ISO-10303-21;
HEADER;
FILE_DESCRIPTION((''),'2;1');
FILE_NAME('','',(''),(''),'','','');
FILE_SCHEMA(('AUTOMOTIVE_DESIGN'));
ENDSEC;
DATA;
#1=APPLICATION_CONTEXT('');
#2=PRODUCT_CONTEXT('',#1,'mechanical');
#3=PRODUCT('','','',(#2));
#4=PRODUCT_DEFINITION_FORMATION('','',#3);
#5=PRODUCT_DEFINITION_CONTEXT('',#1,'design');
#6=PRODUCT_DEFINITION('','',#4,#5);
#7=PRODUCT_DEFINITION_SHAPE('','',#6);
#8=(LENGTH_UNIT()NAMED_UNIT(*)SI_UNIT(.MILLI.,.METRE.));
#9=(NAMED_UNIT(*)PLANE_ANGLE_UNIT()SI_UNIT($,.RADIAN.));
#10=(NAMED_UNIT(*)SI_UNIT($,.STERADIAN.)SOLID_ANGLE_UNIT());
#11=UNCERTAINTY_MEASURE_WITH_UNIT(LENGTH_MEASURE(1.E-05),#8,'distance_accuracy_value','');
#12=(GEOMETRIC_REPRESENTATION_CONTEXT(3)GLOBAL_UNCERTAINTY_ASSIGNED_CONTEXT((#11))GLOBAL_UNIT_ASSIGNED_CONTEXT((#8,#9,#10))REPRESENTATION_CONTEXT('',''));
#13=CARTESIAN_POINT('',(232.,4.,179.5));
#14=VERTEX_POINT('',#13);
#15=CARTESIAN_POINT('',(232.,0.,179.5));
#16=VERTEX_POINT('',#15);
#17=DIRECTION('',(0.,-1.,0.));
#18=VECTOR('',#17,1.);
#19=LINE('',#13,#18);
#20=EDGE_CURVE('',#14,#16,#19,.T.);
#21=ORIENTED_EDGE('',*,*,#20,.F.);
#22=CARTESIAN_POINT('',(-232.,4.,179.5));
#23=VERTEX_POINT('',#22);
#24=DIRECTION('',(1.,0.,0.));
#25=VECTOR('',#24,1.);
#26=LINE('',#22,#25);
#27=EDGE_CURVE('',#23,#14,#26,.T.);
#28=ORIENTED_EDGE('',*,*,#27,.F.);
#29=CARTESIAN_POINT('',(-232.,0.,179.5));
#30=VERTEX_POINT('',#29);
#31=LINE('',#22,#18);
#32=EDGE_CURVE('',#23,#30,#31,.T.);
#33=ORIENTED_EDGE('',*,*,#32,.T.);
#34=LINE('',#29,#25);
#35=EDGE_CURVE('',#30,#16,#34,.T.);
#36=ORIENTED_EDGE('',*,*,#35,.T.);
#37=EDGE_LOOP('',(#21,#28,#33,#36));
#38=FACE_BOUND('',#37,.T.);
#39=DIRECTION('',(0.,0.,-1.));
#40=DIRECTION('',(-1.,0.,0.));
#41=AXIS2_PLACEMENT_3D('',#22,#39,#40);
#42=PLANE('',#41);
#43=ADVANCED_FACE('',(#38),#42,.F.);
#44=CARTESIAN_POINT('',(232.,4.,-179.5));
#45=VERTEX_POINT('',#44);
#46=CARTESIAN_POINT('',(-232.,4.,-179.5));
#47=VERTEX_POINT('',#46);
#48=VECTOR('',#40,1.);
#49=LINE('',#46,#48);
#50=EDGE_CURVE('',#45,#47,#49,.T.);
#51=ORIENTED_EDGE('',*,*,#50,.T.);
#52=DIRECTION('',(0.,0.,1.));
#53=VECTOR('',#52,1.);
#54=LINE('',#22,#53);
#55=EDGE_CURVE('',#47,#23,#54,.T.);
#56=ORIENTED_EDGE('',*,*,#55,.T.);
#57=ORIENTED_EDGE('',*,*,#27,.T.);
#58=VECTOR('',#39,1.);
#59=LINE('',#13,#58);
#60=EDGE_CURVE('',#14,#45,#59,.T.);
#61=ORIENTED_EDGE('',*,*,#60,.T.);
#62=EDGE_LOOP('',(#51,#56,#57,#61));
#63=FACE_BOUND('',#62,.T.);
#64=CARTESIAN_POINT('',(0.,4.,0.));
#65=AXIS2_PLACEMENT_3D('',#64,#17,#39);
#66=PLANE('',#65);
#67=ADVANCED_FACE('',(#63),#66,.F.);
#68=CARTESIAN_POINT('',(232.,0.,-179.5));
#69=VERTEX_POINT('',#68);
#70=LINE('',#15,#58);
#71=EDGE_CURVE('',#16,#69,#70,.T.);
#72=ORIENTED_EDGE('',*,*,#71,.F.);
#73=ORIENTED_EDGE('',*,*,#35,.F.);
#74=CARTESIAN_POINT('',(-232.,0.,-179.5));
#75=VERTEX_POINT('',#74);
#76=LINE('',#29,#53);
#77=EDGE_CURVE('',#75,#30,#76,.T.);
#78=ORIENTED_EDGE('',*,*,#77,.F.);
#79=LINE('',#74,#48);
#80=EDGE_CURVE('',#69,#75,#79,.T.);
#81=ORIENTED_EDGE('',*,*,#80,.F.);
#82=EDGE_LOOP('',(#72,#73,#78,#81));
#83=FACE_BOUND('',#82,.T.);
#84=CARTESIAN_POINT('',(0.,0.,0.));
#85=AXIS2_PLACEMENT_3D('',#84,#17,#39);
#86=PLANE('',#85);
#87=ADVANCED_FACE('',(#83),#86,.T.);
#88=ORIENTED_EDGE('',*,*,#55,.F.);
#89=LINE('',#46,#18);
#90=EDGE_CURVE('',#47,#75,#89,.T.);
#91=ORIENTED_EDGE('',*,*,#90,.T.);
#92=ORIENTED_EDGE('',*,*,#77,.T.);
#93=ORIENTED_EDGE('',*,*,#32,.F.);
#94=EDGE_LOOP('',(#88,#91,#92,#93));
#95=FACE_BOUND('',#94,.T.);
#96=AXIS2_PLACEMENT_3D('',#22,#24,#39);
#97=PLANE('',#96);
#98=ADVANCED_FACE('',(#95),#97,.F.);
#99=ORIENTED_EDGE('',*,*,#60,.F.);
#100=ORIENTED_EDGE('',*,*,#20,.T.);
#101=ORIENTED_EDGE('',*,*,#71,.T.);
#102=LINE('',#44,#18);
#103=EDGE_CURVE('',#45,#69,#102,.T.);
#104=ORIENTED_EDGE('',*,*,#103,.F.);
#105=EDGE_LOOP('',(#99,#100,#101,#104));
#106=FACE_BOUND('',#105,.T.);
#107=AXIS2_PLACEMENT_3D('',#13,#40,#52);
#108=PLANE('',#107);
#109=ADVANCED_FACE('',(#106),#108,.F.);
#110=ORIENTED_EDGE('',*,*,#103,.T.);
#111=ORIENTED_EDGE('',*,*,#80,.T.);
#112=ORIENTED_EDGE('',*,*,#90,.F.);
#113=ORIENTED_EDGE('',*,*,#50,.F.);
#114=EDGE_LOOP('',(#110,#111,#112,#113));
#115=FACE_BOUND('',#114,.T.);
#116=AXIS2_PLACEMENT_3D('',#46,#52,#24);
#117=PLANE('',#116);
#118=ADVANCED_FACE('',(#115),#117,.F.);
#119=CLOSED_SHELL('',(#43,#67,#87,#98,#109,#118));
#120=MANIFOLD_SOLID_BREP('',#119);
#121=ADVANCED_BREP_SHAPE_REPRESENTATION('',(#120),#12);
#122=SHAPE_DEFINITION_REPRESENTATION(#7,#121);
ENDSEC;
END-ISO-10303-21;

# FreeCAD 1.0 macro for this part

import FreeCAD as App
import Part
import Sketcher


def add_polygon(sketch, points):
    """Adds a closed chain of lines whose ends are joined by coincident constraints."""
    first, n = sketch.GeometryCount, len(points)
    for a, b in zip(points, points[1:] + points[:1]):
        sketch.addGeometry(Part.LineSegment(App.Vector(*a, 0), App.Vector(*b, 0)), False)
    for i in range(n):
        sketch.addConstraint(Sketcher.Constraint("Coincident", first + i, 2, first + (i + 1) % n, 1))

doc = App.newDocument("Part")
params = doc.addObject("Spreadsheet::Sheet", "Params")
for row, (alias, value) in enumerate([
    ("sketch1_width", "464 mm"),
    ("sketch1_height", "359 mm"),
    ("pad1_length", "4 mm"),
], start=1):
    params.set(f"A{row}", alias)
    params.set(f"B{row}", "=" + value)
    params.setAlias(f"B{row}", alias)

body = doc.addObject("PartDesign::Body", "Body")

# Sketch on XZ plane
sketch1 = doc.addObject("Sketcher::SketchObject", "Sketch")
body.addObject(sketch1)
sketch1.AttachmentSupport = (doc.XZ_Plane, [""])
sketch1.MapMode = "FlatFace"
add_polygon(sketch1, [(-232, -179.5), (-232, 179.5), (232, 179.5), (232, -179.5)])  # lines 0-3
sketch1.addConstraint(Sketcher.Constraint("Vertical", 0))
sketch1.addConstraint(Sketcher.Constraint("Horizontal", 1))
sketch1.addConstraint(Sketcher.Constraint("Vertical", 2))
sketch1.addConstraint(Sketcher.Constraint("Horizontal", 3))
sketch1.addConstraint(Sketcher.Constraint("Symmetric", 0, 2, 2, 2, -1, 1))
sketch1.addConstraint(Sketcher.Constraint("DistanceX", 1, 1, 1, 2, 464.0))
sketch1.addConstraint(Sketcher.Constraint("DistanceY", 0, 1, 0, 2, 359.0))
sketch1.setExpression("Constraints[9]", "Params.sketch1_width")
sketch1.setExpression("Constraints[10]", "Params.sketch1_height")
pad1 = doc.addObject("PartDesign::Pad", "Pad")
body.addObject(pad1)
pad1.Profile = sketch1
pad1.setExpression("Length", "Params.pad1_length")
pad1.Reversed = True

doc.recompute()
